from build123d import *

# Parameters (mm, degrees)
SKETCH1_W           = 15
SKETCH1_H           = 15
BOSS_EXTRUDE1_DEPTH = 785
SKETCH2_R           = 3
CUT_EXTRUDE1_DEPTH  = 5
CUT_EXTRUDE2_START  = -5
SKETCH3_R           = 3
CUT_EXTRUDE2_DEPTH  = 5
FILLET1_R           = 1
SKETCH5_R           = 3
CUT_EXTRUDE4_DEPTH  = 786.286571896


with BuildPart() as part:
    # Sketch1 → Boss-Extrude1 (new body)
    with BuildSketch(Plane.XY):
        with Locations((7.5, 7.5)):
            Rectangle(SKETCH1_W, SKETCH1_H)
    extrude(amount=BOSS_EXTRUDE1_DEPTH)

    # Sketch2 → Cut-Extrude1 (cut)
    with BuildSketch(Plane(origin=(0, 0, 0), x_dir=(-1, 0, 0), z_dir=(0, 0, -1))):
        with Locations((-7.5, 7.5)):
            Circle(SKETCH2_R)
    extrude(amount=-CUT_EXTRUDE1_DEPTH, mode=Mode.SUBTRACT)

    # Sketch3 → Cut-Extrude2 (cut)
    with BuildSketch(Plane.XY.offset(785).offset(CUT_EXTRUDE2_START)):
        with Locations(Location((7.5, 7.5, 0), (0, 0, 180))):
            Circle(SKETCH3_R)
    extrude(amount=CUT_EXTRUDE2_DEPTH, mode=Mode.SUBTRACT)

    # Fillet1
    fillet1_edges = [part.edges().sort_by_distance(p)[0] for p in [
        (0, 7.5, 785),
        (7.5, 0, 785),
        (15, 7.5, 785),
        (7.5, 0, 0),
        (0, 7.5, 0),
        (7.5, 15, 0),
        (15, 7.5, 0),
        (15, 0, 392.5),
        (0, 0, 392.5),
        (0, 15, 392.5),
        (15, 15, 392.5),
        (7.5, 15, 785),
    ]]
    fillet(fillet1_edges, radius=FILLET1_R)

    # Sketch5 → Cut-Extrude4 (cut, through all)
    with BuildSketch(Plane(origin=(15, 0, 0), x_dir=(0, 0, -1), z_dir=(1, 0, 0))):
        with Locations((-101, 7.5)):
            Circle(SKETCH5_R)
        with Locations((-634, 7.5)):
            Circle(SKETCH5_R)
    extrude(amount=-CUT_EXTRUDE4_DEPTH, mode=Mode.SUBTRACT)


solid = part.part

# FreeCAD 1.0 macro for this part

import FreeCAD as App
import Part
import Sketcher

V = App.Vector
Q = App.Units.Quantity


def edges_at(feature, points):
    """Names of the edges that pass closest to the given points."""
    edges = feature.Shape.Edges
    near = lambda p: min(range(len(edges)), key=lambda i: edges[i].distToShape(Part.Vertex(*p))[0])
    return sorted({f"Edge{near(p) + 1}" for p in points})

doc = App.newDocument("Part")
body = doc.addObject("PartDesign::Body", "Body")

# Sketch on XY plane
sketch1 = body.newObject("Sketcher::SketchObject", "Sketch")
sketch1.AttachmentSupport = (doc.getObject("XY_Plane"), [""])
sketch1.MapMode = "FlatFace"
sketch1.addGeometry([
    Part.LineSegment(V(0, 15, 0), V(0, 0, 0)),
    Part.LineSegment(V(0, 0, 0), V(15, 0, 0)),
    Part.LineSegment(V(15, 0, 0), V(15, 15, 0)),
    Part.LineSegment(V(15, 15, 0), V(0, 15, 0)),
], False)
sketch1.addConstraint([
    Sketcher.Constraint("Coincident", 0, 2, 1, 1),
    Sketcher.Constraint("Coincident", 1, 2, 2, 1),
    Sketcher.Constraint("Coincident", 2, 2, 3, 1),
    Sketcher.Constraint("Coincident", 3, 2, 0, 1),
    Sketcher.Constraint("Vertical", 0),
    Sketcher.Constraint("Horizontal", 1),
    Sketcher.Constraint("Vertical", 2),
    Sketcher.Constraint("Horizontal", 3),
    Sketcher.Constraint("Coincident", 0, 2, -1, 1),
    Sketcher.Constraint("Equal", 3, 0),
    Sketcher.Constraint("DistanceX", 1, 1, 1, 2, Q("15 mm")),
])
pad1 = body.newObject("PartDesign::Pad", "Pad")
pad1.Profile = sketch1
pad1.Length = 785

# Sketch on XY plane
sketch2 = body.newObject("Sketcher::SketchObject", "Sketch001")
sketch2.AttachmentSupport = (doc.getObject("XY_Plane"), [""])
sketch2.MapMode = "FlatFace"
sketch2.addGeometry(Part.Circle(V(7.5, 7.5, 0), V(0, 0, 1), 3), False)
sketch2.addConstraint([
    Sketcher.Constraint("Diameter", 0, Q("6 mm")),
    Sketcher.Constraint("DistanceX", -1, 1, 0, 3, Q("7.5 mm")),
    Sketcher.Constraint("DistanceY", -1, 1, 0, 3, Q("7.5 mm")),
])
pocket1 = body.newObject("PartDesign::Pocket", "Pocket")
pocket1.Profile = sketch2
pocket1.Length = 5
pocket1.Reversed = True

# Sketch on XY plane
sketch3 = body.newObject("Sketcher::SketchObject", "Sketch002")
sketch3.AttachmentSupport = (doc.getObject("XY_Plane"), [""])
sketch3.MapMode = "FlatFace"
sketch3.AttachmentOffset = App.Placement(V(0, 0, 780), App.Rotation())
sketch3.addGeometry(Part.Circle(V(7.5, 7.5, 0), V(0, 0, 1), 3), False)
sketch3.addConstraint([
    Sketcher.Constraint("Diameter", 0, Q("6 mm")),
    Sketcher.Constraint("DistanceX", -1, 1, 0, 3, Q("7.5 mm")),
    Sketcher.Constraint("DistanceY", -1, 1, 0, 3, Q("7.5 mm")),
])
pocket2 = body.newObject("PartDesign::Pocket", "Pocket001")
pocket2.Profile = sketch3
pocket2.Length = 5
pocket2.Reversed = True
doc.recompute()

fillet = body.newObject("PartDesign::Fillet", "Fillet")
fillet.Base = (pocket2, edges_at(pocket2, [
    (0, 7.5, 785),
    (7.5, 0, 785),
    (15, 7.5, 785),
    (7.5, 0, 0),
    (0, 7.5, 0),
    (7.5, 15, 0),
    (15, 7.5, 0),
    (15, 0, 392.5),
    (0, 0, 392.5),
    (0, 15, 392.5),
    (15, 15, 392.5),
    (7.5, 15, 785),
]))
fillet.Radius = 1

# Sketch on YZ plane
sketch4 = body.newObject("Sketcher::SketchObject", "Sketch003")
sketch4.AttachmentSupport = (doc.getObject("YZ_Plane"), [""])
sketch4.MapMode = "FlatFace"
sketch4.AttachmentOffset = App.Placement(V(0, 0, 15), App.Rotation())
sketch4.addGeometry([
    Part.Circle(V(7.5, 101, 0), V(0, 0, 1), 3),
    Part.Circle(V(7.5, 634, 0), V(0, 0, 1), 3),
], False)
sketch4.addConstraint([
    Sketcher.Constraint("Equal", 0, 1),
    Sketcher.Constraint("Vertical", 0, 3, 1, 3),
    Sketcher.Constraint("Diameter", 0, Q("6 mm")),
    Sketcher.Constraint("DistanceY", -1, 1, 0, 3, Q("101 mm")),
    Sketcher.Constraint("DistanceY", -1, 1, 1, 3, Q("634 mm")),
    Sketcher.Constraint("DistanceX", -1, 1, 0, 3, Q("7.5 mm")),
])
pocket3 = body.newObject("PartDesign::Pocket", "Pocket002")
pocket3.Profile = sketch4
pocket3.Type = "ThroughAll"

doc.recompute()
